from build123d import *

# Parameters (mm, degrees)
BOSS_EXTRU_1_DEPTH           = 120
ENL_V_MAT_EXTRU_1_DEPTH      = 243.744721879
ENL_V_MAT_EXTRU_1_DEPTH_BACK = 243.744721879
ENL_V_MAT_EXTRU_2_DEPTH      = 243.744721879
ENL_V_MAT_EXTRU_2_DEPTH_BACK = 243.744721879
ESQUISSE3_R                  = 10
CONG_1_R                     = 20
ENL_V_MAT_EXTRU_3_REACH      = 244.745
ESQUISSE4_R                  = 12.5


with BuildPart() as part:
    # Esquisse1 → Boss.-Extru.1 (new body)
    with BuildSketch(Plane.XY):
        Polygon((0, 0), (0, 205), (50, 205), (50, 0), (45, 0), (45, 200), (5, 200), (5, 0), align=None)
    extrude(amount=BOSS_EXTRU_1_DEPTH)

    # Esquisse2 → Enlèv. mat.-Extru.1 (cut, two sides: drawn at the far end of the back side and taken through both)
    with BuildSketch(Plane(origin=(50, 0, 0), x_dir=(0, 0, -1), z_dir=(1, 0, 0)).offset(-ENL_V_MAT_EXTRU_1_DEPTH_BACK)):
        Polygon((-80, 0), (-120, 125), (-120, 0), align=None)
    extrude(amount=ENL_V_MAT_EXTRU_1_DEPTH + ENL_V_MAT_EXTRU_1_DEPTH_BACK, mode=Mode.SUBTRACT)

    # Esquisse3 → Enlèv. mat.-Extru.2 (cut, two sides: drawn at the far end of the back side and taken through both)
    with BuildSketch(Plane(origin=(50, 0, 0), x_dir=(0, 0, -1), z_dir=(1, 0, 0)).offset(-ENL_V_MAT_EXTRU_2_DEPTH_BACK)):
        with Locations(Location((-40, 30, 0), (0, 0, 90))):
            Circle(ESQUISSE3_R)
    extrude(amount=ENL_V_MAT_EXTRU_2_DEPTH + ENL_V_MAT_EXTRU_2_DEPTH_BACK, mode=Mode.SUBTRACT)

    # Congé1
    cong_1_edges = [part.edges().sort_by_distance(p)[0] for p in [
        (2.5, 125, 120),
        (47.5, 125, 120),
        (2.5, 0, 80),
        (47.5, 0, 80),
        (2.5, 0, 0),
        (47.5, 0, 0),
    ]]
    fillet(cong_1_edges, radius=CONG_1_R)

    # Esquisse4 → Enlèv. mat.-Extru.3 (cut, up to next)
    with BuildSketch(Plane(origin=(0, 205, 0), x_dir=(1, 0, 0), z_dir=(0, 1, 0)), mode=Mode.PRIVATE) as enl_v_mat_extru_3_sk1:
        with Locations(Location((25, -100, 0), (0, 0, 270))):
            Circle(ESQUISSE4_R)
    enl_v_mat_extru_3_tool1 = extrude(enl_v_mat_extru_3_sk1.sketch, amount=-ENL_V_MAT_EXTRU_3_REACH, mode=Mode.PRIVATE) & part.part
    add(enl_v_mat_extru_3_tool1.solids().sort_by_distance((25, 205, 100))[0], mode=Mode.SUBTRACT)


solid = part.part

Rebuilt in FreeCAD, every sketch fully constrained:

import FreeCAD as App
import Part
import Sketcher
from FreeCAD import Vector
Q = App.Units.Quantity


def edges_at(feature, points):
    """Names of the edges that pass closest to the given points."""
    edges = feature.Shape.Edges
    near = lambda p: min(range(len(edges)), key=lambda i: edges[i].distToShape(Part.Vertex(*p))[0])
    return sorted({f"Edge{near(p) + 1}" for p in points})


def add_polygon(sketch, points):
    """Adds a closed chain of lines whose ends are joined by coincident constraints."""
    first, n = sketch.GeometryCount, len(points)
    for a, b in zip(points, points[1:] + points[:1]):
        sketch.addGeometry(Part.LineSegment(App.Vector(*a, 0), App.Vector(*b, 0)), False)
    for i in range(n):
        sketch.addConstraint(Sketcher.Constraint("Coincident", first + i, 2, first + (i + 1) % n, 1))

doc = App.newDocument("Part")
body = doc.addObject("PartDesign::Body", "Body")

sketch1 = body.newObject("Sketcher::SketchObject", "Sketch")
sketch1.AttachmentSupport = (doc.getObject("XY_Plane"), [""])
sketch1.MapMode = "FlatFace"
add_polygon(sketch1, [(0, 205), (0, 0), (5, 0), (5, 200), (45, 200), (45, 0), (50, 0), (50, 205)])
sketch1.addConstraint([
    Sketcher.Constraint("Vertical", 0),
    Sketcher.Constraint("Horizontal", 1),
    Sketcher.Constraint("Vertical", 2),
    Sketcher.Constraint("Horizontal", 3),
    Sketcher.Constraint("Vertical", 4),
    Sketcher.Constraint("Horizontal", 5),
    Sketcher.Constraint("Vertical", 6),
    Sketcher.Constraint("Horizontal", 7),
    Sketcher.Constraint("Coincident", 0, 2, -1, 1),
    Sketcher.Constraint("PointOnObject", 4, 2, -1),
    Sketcher.Constraint("Equal", 1, 5),
    Sketcher.Constraint("DistanceX", 1, 1, 1, 2, Q("5 mm")),
    Sketcher.Constraint("DistanceX", 3, 1, 3, 2, Q("40 mm")),
    Sketcher.Constraint("DistanceY", 0, 2, 0, 1, Q("205 mm")),
    Sketcher.Constraint("DistanceY", 2, 1, 2, 2, Q("200 mm")),
])
pad1 = body.newObject("PartDesign::Pad", "Pad")
pad1.Profile = sketch1
pad1.Length = 120

sketch2 = body.newObject("Sketcher::SketchObject", "Sketch001")
sketch2.AttachmentSupport = (doc.getObject("YZ_Plane"), [""])
sketch2.MapMode = "FlatFace"
sketch2.AttachmentOffset = App.Placement(Vector(0, 0, 50), App.Rotation())
add_polygon(sketch2, [(0, 80), (125, 120), (0, 120)])
sketch2.addConstraint([
    Sketcher.Constraint("Horizontal", 1),
    Sketcher.Constraint("Vertical", 2),
    Sketcher.Constraint("PointOnObject", 1, 2, -2),
    Sketcher.Constraint("DistanceX", 1, 2, 1, 1, Q("125 mm")),
    Sketcher.Constraint("DistanceY", 2, 2, 2, 1, Q("40 mm")),
    Sketcher.Constraint("DistanceY", -1, 1, 0, 2, Q("120 mm")),
])
pocket1 = body.newObject("PartDesign::Pocket", "Pocket")
pocket1.Profile = sketch2
pocket1.Type = "ThroughAll"
pocket1.Midplane = True

sketch3 = body.newObject("Sketcher::SketchObject", "Sketch002")
sketch3.AttachmentSupport = (doc.getObject("YZ_Plane"), [""])
sketch3.MapMode = "FlatFace"
sketch3.AttachmentOffset = App.Placement(Vector(0, 0, 50), App.Rotation())
sketch3.addGeometry(Part.Circle(Vector(30, 40, 0), Vector(0, 0, 1), 10), False)
sketch3.addConstraint([
    Sketcher.Constraint("Diameter", 0, Q("20 mm")),
    Sketcher.Constraint("DistanceX", -1, 1, 0, 3, Q("30 mm")),
    Sketcher.Constraint("DistanceY", -1, 1, 0, 3, Q("40 mm")),
])
pocket2 = body.newObject("PartDesign::Pocket", "Pocket001")
pocket2.Profile = sketch3
pocket2.Type = "ThroughAll"
pocket2.Midplane = True
doc.recompute()

fillet = body.newObject("PartDesign::Fillet", "Fillet")
fillet.Base = (pocket2, edges_at(pocket2, [
    (2.5, 125, 120),
    (47.5, 125, 120),
    (2.5, 0, 80),
    (47.5, 0, 80),
    (2.5, 0, 0),
    (47.5, 0, 0),
]))
fillet.Radius = 20

sketch4 = body.newObject("Sketcher::SketchObject", "Sketch003")
sketch4.AttachmentSupport = (doc.getObject("XZ_Plane"), [""])
sketch4.MapMode = "FlatFace"
sketch4.AttachmentOffset = App.Placement(Vector(0, 0, -205), App.Rotation())
sketch4.addGeometry(Part.Circle(Vector(25, 100, 0), Vector(0, 0, 1), 12), False)
sketch4.addConstraint([
    Sketcher.Constraint("Diameter", 0, Q("25 mm")),
    Sketcher.Constraint("DistanceX", -1, 1, 0, 3, Q("25 mm")),
    Sketcher.Constraint("DistanceY", -1, 1, 0, 3, Q("100 mm")),
])
pocket3 = body.newObject("PartDesign::Pocket", "Pocket002")
pocket3.Profile = sketch4
pocket3.Type = "UpToFirst"
pocket3.Reversed = True

doc.recompute()
